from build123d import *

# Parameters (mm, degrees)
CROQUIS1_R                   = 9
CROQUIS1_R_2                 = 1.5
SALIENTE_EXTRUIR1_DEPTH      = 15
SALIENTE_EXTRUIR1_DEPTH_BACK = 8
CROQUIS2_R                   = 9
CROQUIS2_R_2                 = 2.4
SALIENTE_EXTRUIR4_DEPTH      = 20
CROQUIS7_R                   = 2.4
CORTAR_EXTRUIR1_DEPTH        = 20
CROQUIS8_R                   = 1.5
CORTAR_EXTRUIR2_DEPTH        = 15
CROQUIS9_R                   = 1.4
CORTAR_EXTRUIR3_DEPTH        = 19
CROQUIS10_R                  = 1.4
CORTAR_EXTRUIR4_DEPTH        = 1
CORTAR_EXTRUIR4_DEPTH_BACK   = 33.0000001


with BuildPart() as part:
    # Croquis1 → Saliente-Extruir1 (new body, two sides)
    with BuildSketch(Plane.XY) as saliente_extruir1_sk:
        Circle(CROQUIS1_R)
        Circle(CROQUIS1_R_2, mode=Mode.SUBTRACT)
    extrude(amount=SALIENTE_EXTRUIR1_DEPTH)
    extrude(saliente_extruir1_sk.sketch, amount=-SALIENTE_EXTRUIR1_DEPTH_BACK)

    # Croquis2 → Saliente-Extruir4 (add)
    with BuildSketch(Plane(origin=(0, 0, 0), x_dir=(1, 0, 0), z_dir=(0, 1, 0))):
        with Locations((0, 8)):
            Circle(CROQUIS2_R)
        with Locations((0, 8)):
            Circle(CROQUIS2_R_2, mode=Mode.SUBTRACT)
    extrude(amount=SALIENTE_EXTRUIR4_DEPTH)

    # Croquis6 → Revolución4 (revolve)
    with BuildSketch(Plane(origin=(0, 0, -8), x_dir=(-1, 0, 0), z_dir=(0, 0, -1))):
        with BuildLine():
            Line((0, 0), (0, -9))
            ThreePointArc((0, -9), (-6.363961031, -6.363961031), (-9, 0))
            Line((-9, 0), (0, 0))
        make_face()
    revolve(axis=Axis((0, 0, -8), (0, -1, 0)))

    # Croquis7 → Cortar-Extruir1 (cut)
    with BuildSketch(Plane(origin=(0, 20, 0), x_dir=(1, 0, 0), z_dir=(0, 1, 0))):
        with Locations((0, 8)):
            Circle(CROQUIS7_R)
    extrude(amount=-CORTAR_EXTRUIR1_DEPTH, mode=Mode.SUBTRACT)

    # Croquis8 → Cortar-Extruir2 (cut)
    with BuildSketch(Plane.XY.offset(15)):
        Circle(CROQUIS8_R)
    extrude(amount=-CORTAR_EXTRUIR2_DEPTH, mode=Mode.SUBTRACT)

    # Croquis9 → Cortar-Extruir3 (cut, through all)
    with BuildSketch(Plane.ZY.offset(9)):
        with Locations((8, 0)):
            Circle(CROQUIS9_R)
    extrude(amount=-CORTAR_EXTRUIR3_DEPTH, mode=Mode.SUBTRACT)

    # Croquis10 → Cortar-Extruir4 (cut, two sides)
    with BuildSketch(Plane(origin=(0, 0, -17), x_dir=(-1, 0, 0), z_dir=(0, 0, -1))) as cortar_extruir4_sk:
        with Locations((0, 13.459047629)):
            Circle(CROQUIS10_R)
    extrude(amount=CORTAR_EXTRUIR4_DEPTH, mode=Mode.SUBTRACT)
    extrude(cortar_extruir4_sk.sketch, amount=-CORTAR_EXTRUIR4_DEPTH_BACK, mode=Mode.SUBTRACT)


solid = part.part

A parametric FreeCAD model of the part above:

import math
import FreeCAD as App
import Part
import Sketcher
from FreeCAD import Vector
Q = App.Units.Quantity

doc = App.newDocument("Part")
body = doc.addObject("PartDesign::Body", "Body")

# Sketch on XY plane
sketch1 = body.newObject("Sketcher::SketchObject", "Sketch")
sketch1.AttachmentSupport = (doc.getObject("XY_Plane"), [""])
sketch1.MapMode = "FlatFace"
sketch1.addGeometry([
    Part.Circle(Vector(0, 0, 0), Vector(0, 0, 1), 9),
    Part.Circle(Vector(0, 0, 0), Vector(0, 0, 1), 1.5),
], False)
sketch1.addConstraint([
    Sketcher.Constraint("Coincident", 0, 3, -1, 1),
    Sketcher.Constraint("Coincident", 1, 3, -1, 1),
    Sketcher.Constraint("Diameter", 0, Q("18 mm")),
    Sketcher.Constraint("Diameter", 1, Q("3 mm")),
])
pad1 = body.newObject("PartDesign::Pad", "Pad")
pad1.Profile = sketch1
pad1.Type = "TwoLengths"
pad1.Length = 15
pad1.Length2 = 8

# Sketch on XZ plane
sketch2 = body.newObject("Sketcher::SketchObject", "Sketch001")
sketch2.AttachmentSupport = (doc.getObject("XZ_Plane"), [""])
sketch2.MapMode = "FlatFace"
sketch2.addGeometry([
    Part.Circle(Vector(0, -8, 0), Vector(0, 0, 1), 9),
    Part.Circle(Vector(0, -8, 0), Vector(0, 0, 1), 2.4),
], False)
sketch2.addConstraint([
    Sketcher.Constraint("Coincident", 1, 3, 0, 3),
    Sketcher.Constraint("PointOnObject", 0, 3, -2),
    Sketcher.Constraint("Diameter", 0, Q("18 mm")),
    Sketcher.Constraint("Diameter", 1, Q("4.8 mm")),
    Sketcher.Constraint("DistanceY", 0, 3, -1, 1, Q("8 mm")),
])
pad2 = body.newObject("PartDesign::Pad", "Pad001")
pad2.Profile = sketch2
pad2.Length = 20
pad2.Reversed = True

# Sketch on XY plane
sketch3 = body.newObject("Sketcher::SketchObject", "Sketch002")
sketch3.AttachmentSupport = (doc.getObject("XY_Plane"), [""])
sketch3.MapMode = "FlatFace"
sketch3.AttachmentOffset = App.Placement(Vector(0, 0, -8), App.Rotation())
sketch3.addGeometry([
    Part.LineSegment(Vector(0, -9, 0), Vector(0, 0, 0)),
    Part.LineSegment(Vector(0, 0, 0), Vector(9, 0, 0)),
    Part.ArcOfCircle(Part.Circle(Vector(0, 0, 0), Vector(0, 0, 1), 9), math.radians(-90), math.radians(0)),
], False)
sketch3.addConstraint([
    Sketcher.Constraint("Coincident", 0, 2, 1, 1),
    Sketcher.Constraint("Coincident", 1, 2, 2, 2),
    Sketcher.Constraint("Coincident", 2, 1, 0, 1),
    Sketcher.Constraint("Vertical", 0),
    Sketcher.Constraint("Horizontal", 1),
    Sketcher.Constraint("Coincident", 2, 3, -1, 1),
    Sketcher.Constraint("Coincident", 0, 2, -1, 1),
    Sketcher.Constraint("Radius", 2, Q("9 mm")),
])
revolution = body.newObject("PartDesign::Revolution", "Revolution")
revolution.Profile = sketch3
revolution.ReferenceAxis = (sketch3, ["V_Axis"])
revolution.Angle = 360

# Sketch on XZ plane
sketch4 = body.newObject("Sketcher::SketchObject", "Sketch003")
sketch4.AttachmentSupport = (doc.getObject("XZ_Plane"), [""])
sketch4.MapMode = "FlatFace"
sketch4.AttachmentOffset = App.Placement(Vector(0, 0, -20), App.Rotation())
sketch4.addGeometry(Part.Circle(Vector(0, -8, 0), Vector(0, 0, 1), 2.4), False)
sketch4.addConstraint([
    Sketcher.Constraint("PointOnObject", 0, 3, -2),
    Sketcher.Constraint("Diameter", 0, Q("4.8 mm")),
    Sketcher.Constraint("DistanceY", 0, 3, -1, 1, Q("8 mm")),
])
pocket1 = body.newObject("PartDesign::Pocket", "Pocket")
pocket1.Profile = sketch4
pocket1.Length = 20
pocket1.Reversed = True

# Sketch on XY plane
sketch5 = body.newObject("Sketcher::SketchObject", "Sketch004")
sketch5.AttachmentSupport = (doc.getObject("XY_Plane"), [""])
sketch5.MapMode = "FlatFace"
sketch5.AttachmentOffset = App.Placement(Vector(0, 0, 15), App.Rotation())
sketch5.addGeometry(Part.Circle(Vector(0, 0, 0), Vector(0, 0, 1), 1.5), False)
sketch5.addConstraint([
    Sketcher.Constraint("Coincident", 0, 3, -1, 1),
    Sketcher.Constraint("Diameter", 0, Q("3 mm")),
])
pocket2 = body.newObject("PartDesign::Pocket", "Pocket001")
pocket2.Profile = sketch5
pocket2.Length = 15

# Sketch on YZ plane
sketch6 = body.newObject("Sketcher::SketchObject", "Sketch005")
sketch6.AttachmentSupport = (doc.getObject("YZ_Plane"), [""])
sketch6.MapMode = "FlatFace"
sketch6.AttachmentOffset = App.Placement(Vector(0, 0, -9), App.Rotation())
sketch6.addGeometry(Part.Circle(Vector(0, 8, 0), Vector(0, 0, 1), 1.4), False)
sketch6.addConstraint([
    Sketcher.Constraint("PointOnObject", 0, 3, -2),
    Sketcher.Constraint("Diameter", 0, Q("2.8 mm")),
    Sketcher.Constraint("DistanceY", -1, 1, 0, 3, Q("8 mm")),
])
pocket3 = body.newObject("PartDesign::Pocket", "Pocket002")
pocket3.Profile = sketch6
pocket3.Type = "ThroughAll"
pocket3.Reversed = True

# Sketch on XY plane
sketch7 = body.newObject("Sketcher::SketchObject", "Sketch006")
sketch7.AttachmentSupport = (doc.getObject("XY_Plane"), [""])
sketch7.MapMode = "FlatFace"
sketch7.AttachmentOffset = App.Placement(Vector(0, 0, -17), App.Rotation())
sketch7.addGeometry(Part.Circle(Vector(0, 13.5, 0), Vector(0, 0, 1), 1.4), False)
sketch7.addConstraint([
    Sketcher.Constraint("PointOnObject", 0, 3, -2),
    Sketcher.Constraint("Diameter", 0, Q("2.8 mm")),
    Sketcher.Constraint("DistanceY", -1, 1, 0, 3, Q("13.459048 mm")),
])
pocket4 = body.newObject("PartDesign::Pocket", "Pocket003")
pocket4.Profile = sketch7
pocket4.Type = "ThroughAll"
pocket4.Midplane = True

doc.recompute()
